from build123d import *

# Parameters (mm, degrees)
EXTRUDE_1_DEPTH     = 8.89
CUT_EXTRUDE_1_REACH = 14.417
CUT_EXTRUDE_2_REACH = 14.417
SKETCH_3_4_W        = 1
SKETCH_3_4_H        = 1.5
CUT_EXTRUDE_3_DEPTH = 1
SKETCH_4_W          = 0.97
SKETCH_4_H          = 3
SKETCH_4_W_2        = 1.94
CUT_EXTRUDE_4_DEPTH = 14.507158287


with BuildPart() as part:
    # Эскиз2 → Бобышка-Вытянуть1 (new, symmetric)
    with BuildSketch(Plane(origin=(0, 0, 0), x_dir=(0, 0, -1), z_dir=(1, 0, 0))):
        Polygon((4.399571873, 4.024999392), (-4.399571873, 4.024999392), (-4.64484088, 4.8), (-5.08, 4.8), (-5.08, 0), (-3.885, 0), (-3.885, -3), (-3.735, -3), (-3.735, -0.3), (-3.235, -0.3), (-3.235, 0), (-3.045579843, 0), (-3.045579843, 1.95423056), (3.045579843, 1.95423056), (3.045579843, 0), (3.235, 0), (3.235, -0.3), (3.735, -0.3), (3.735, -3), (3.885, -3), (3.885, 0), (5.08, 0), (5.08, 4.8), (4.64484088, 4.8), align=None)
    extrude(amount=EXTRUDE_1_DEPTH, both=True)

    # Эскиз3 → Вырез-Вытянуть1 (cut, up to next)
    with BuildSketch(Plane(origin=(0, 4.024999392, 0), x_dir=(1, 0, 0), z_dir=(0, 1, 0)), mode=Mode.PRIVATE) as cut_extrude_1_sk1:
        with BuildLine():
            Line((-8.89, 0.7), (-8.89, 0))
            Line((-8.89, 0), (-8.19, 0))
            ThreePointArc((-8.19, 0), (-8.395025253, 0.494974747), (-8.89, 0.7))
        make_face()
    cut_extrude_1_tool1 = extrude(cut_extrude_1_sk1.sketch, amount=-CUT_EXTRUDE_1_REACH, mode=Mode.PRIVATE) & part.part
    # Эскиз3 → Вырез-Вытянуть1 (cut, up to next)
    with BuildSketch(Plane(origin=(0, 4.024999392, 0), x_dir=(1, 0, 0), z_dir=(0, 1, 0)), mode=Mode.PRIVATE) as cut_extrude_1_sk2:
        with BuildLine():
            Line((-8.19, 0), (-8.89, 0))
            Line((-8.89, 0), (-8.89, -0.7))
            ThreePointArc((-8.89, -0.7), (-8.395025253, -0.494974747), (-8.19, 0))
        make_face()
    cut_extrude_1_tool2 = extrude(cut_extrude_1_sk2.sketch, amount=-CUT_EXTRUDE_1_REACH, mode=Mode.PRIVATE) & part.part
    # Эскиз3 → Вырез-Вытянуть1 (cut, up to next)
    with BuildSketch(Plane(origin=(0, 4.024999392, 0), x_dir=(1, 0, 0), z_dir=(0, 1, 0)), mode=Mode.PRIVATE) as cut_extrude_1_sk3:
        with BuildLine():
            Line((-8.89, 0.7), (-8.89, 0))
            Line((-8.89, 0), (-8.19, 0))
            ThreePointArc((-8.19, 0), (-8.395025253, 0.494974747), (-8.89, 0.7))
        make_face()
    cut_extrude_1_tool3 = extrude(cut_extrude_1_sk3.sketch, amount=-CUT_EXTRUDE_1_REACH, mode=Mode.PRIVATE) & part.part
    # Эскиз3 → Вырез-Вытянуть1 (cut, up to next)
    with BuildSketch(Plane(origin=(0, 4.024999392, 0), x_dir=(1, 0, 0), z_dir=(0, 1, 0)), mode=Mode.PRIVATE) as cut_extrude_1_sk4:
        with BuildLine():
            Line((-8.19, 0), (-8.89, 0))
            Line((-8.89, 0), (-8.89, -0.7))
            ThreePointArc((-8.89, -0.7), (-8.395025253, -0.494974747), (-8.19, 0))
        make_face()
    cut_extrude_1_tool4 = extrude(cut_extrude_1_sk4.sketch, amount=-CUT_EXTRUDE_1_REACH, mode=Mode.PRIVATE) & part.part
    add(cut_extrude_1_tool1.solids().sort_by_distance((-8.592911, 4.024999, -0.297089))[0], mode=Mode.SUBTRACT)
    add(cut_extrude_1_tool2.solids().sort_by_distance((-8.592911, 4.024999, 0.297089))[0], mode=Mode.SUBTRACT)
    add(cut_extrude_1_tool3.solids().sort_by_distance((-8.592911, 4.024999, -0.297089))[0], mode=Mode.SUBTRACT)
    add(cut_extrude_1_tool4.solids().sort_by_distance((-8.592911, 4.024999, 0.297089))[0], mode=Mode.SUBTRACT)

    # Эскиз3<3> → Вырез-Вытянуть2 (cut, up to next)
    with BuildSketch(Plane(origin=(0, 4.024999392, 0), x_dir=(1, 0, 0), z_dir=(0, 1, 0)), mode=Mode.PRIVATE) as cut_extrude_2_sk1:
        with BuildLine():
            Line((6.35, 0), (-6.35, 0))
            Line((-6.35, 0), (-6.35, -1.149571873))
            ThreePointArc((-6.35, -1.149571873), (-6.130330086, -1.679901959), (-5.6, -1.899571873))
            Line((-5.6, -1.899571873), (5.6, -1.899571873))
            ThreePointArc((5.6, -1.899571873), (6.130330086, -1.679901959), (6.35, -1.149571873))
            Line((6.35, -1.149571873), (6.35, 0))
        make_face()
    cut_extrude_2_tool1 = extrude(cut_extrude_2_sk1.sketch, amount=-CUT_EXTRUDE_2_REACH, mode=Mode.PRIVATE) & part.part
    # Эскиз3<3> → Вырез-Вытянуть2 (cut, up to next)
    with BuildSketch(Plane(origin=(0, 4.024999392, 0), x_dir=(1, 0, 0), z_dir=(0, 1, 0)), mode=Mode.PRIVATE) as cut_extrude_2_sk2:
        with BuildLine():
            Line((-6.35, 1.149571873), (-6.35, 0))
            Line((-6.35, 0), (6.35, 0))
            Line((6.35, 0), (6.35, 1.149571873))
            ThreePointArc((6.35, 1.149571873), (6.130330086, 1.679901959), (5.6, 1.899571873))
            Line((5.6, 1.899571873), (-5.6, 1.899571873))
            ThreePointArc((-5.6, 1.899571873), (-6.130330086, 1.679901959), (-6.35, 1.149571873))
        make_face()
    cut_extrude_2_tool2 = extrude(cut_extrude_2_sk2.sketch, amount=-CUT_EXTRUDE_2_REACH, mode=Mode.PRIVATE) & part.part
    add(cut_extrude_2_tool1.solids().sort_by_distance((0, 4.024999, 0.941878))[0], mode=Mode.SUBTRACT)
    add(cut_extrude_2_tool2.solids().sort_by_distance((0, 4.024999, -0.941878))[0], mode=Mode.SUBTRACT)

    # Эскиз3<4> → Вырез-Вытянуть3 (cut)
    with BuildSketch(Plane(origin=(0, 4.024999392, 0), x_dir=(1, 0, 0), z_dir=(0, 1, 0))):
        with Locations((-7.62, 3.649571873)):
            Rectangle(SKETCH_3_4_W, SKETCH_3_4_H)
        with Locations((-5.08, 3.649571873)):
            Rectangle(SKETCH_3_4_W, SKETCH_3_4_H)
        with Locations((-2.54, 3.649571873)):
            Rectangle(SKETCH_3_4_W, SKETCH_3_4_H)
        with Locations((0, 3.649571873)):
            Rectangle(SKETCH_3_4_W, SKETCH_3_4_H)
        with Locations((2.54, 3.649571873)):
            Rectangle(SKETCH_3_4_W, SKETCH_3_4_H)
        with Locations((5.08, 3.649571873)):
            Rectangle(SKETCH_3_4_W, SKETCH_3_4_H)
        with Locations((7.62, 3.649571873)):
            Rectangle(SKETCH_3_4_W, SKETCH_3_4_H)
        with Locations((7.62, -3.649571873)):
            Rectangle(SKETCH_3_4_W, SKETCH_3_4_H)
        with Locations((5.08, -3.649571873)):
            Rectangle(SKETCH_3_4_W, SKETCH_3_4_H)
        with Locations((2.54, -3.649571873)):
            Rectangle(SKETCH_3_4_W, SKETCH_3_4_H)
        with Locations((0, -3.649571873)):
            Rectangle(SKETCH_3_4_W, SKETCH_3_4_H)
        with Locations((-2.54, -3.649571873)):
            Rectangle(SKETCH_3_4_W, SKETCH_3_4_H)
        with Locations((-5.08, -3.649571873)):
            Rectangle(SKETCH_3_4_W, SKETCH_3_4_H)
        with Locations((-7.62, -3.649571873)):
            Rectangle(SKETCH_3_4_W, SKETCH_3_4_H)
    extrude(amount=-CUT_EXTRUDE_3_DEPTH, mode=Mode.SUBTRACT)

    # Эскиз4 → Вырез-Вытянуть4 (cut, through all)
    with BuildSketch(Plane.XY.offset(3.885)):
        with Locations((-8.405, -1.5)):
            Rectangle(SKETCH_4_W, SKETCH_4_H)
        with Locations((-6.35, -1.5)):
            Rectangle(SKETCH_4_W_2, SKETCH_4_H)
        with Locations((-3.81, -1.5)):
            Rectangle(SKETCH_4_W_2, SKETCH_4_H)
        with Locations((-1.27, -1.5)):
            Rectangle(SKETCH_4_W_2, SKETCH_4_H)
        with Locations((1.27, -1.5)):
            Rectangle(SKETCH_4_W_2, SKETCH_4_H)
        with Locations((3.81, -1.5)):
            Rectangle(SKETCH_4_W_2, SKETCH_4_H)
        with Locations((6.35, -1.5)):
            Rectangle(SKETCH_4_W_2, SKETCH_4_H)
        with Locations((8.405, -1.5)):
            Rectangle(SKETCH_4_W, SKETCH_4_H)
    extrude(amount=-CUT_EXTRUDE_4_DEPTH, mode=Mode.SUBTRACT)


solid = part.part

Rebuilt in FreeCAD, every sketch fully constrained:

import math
import FreeCAD as App
import Part
import Sketcher
from FreeCAD import Vector
Q = App.Units.Quantity


def add_polygon(sketch, points):
    """Adds a closed chain of lines whose ends are joined by coincident constraints."""
    first, n = sketch.GeometryCount, len(points)
    for a, b in zip(points, points[1:] + points[:1]):
        sketch.addGeometry(Part.LineSegment(App.Vector(*a, 0), App.Vector(*b, 0)), False)
    for i in range(n):
        sketch.addConstraint(Sketcher.Constraint("Coincident", first + i, 2, first + (i + 1) % n, 1))

doc = App.newDocument("Part")
body = doc.addObject("PartDesign::Body", "Body")

# Sketch on YZ plane
sketch1 = body.newObject("Sketcher::SketchObject", "Sketch")
sketch1.AttachmentSupport = (doc.getObject("YZ_Plane"), [""])
sketch1.MapMode = "FlatFace"
add_polygon(sketch1, [(4.02, -4.4), (4.02, 4.4), (4.8, 4.64), (4.8, 5.08), (0, 5.08), (0, 3.88), (-3, 3.88), (-3, 3.73), (-0.3, 3.73), (-0.3, 3.23), (0, 3.23), (0, 3.05), (1.95, 3.05), (1.95, -3.05), (0, -3.05), (0, -3.23), (-0.3, -3.23), (-0.3, -3.73), (-3, -3.73), (-3, -3.88), (0, -3.88), (0, -5.08), (4.8, -5.08), (4.8, -4.64)])  # lines 0-23
sketch1.addConstraint([
    Sketcher.Constraint("Vertical", 0),
    Sketcher.Constraint("Vertical", 2),
    Sketcher.Constraint("Horizontal", 3),
    Sketcher.Constraint("Vertical", 4),
    Sketcher.Constraint("Horizontal", 5),
    Sketcher.Constraint("Vertical", 6),
    Sketcher.Constraint("Horizontal", 7),
    Sketcher.Constraint("Vertical", 8),
    Sketcher.Constraint("Horizontal", 9),
    Sketcher.Constraint("Vertical", 10),
    Sketcher.Constraint("Horizontal", 11),
    Sketcher.Constraint("Vertical", 12),
    Sketcher.Constraint("Horizontal", 13),
    Sketcher.Constraint("Vertical", 14),
    Sketcher.Constraint("Horizontal", 15),
    Sketcher.Constraint("Vertical", 16),
    Sketcher.Constraint("Horizontal", 17),
    Sketcher.Constraint("Vertical", 18),
    Sketcher.Constraint("Horizontal", 19),
    Sketcher.Constraint("Vertical", 20),
    Sketcher.Constraint("Horizontal", 21),
    Sketcher.Constraint("Vertical", 22),
    Sketcher.Constraint("Symmetric", 10, 2, 13, 2, -1, 1),
    Sketcher.Constraint("Symmetric", 4, 2, 19, 2, -1, 1),
    Sketcher.Constraint("Symmetric", 9, 2, 14, 2, -1),
    Sketcher.Constraint("Symmetric", 7, 2, 16, 2, -1),
    Sketcher.Constraint("Symmetric", 3, 2, 20, 2, -1),
    Sketcher.Constraint("Symmetric", 1, 2, 22, 2, -1),
    Sketcher.Constraint("Vertical", 6, 2, 17, 2),
    Sketcher.Constraint("Equal", 1, 23),
    Sketcher.Constraint("DistanceX", 5, 2, 5, 1, Q("3 mm")),
    Sketcher.Constraint("DistanceX", 3, 2, 3, 1, Q("4.8 mm")),
    Sketcher.Constraint("DistanceX", 7, 1, 7, 2, Q("2.7 mm")),
    Sketcher.Constraint("DistanceY", 8, 2, 8, 1, Q("0.5 mm")),
    Sketcher.Constraint("DistanceY", 6, 2, 6, 1, Q("0.15 mm")),
    Sketcher.Constraint("DistanceY", 4, 2, 4, 1, Q("1.195 mm")),
    Sketcher.Constraint("DistanceY", -1, 1, 2, 2, Q("5.08 mm")),
    Sketcher.Constraint("DistanceX", -1, 1, 0, 2, Q("4.024999 mm")),
    Sketcher.Constraint("DistanceX", 11, 1, 11, 2, Q("1.954231 mm")),
    Sketcher.Constraint("DistanceY", 2, 1, 2, 2, Q("0.435159 mm")),
    Sketcher.Constraint("DistanceY", 10, 2, 10, 1, Q("0.18942 mm")),
    Sketcher.Constraint("DistanceY", 0, 1, 0, 2, Q("8.799144 mm")),
])
pad1 = body.newObject("PartDesign::Pad", "Pad")
pad1.Profile = sketch1
pad1.Length = 17.78
pad1.Midplane = True

# Sketch on XZ plane
sketch2 = body.newObject("Sketcher::SketchObject", "Sketch001")
sketch2.AttachmentSupport = (doc.getObject("XZ_Plane"), [""])
sketch2.MapMode = "FlatFace"
sketch2.AttachmentOffset = App.Placement(Vector(0, 0, -4.024999), App.Rotation())
sketch2.addGeometry([
    Part.LineSegment(Vector(-8.9, -0.7, 0), Vector(-8.9, 0, 0)),
    Part.LineSegment(Vector(-8.9, 0, 0), Vector(-8.2, 0, 0)),
    Part.ArcOfCircle(Part.Circle(Vector(-8.9, 0, 0), Vector(0, 0, 1), 0.7), math.radians(-90), math.radians(0)),
], False)
sketch2.addConstraint([
    Sketcher.Constraint("Coincident", 0, 2, 1, 1),
    Sketcher.Constraint("Coincident", 1, 2, 2, 2),
    Sketcher.Constraint("Coincident", 2, 1, 0, 1),
    Sketcher.Constraint("Vertical", 0),
    Sketcher.Constraint("Horizontal", 1),
    Sketcher.Constraint("Coincident", 0, 2, 2, 3),
    Sketcher.Constraint("PointOnObject", 2, 3, -1),
    Sketcher.Constraint("Radius", 2, Q("0.7 mm")),
    Sketcher.Constraint("DistanceX", 2, 3, -1, 1, Q("8.89 mm")),
])
pocket1 = body.newObject("PartDesign::Pocket", "Pocket")
pocket1.Profile = sketch2
pocket1.Type = "UpToFirst"
pocket1.Reversed = True

# Sketch on XZ plane
sketch3 = body.newObject("Sketcher::SketchObject", "Sketch002")
sketch3.AttachmentSupport = (doc.getObject("XZ_Plane"), [""])
sketch3.MapMode = "FlatFace"
sketch3.AttachmentOffset = App.Placement(Vector(0, 0, -4.024999), App.Rotation())
sketch3.addGeometry([
    Part.LineSegment(Vector(-8.2, 0, 0), Vector(-8.9, 0, 0)),
    Part.LineSegment(Vector(-8.9, 0, 0), Vector(-8.9, 0.7, 0)),
    Part.ArcOfCircle(Part.Circle(Vector(-8.9, 0, 0), Vector(0, 0, 1), 0.7), math.radians(0), math.radians(90)),
], False)
sketch3.addConstraint([
    Sketcher.Constraint("Coincident", 0, 2, 1, 1),
    Sketcher.Constraint("Coincident", 1, 2, 2, 2),
    Sketcher.Constraint("Coincident", 2, 1, 0, 1),
    Sketcher.Constraint("Horizontal", 0),
    Sketcher.Constraint("Vertical", 1),
    Sketcher.Constraint("Coincident", 0, 2, 2, 3),
    Sketcher.Constraint("PointOnObject", 2, 3, -1),
    Sketcher.Constraint("Radius", 2, Q("0.7 mm")),
    Sketcher.Constraint("DistanceX", 2, 3, -1, 1, Q("8.89 mm")),
])
pocket2 = body.newObject("PartDesign::Pocket", "Pocket001")
pocket2.Profile = sketch3
pocket2.Type = "UpToFirst"
pocket2.Reversed = True

# Sketch on XZ plane
sketch4 = body.newObject("Sketcher::SketchObject", "Sketch003")
sketch4.AttachmentSupport = (doc.getObject("XZ_Plane"), [""])
sketch4.MapMode = "FlatFace"
sketch4.AttachmentOffset = App.Placement(Vector(0, 0, -4.024999), App.Rotation())
sketch4.addGeometry([
    Part.LineSegment(Vector(-8.9, -0.7, 0), Vector(-8.9, 0, 0)),
    Part.LineSegment(Vector(-8.9, 0, 0), Vector(-8.2, 0, 0)),
    Part.ArcOfCircle(Part.Circle(Vector(-8.9, 0, 0), Vector(0, 0, 1), 0.7), math.radians(-90), math.radians(0)),
], False)
sketch4.addConstraint([
    Sketcher.Constraint("Coincident", 0, 2, 1, 1),
    Sketcher.Constraint("Coincident", 1, 2, 2, 2),
    Sketcher.Constraint("Coincident", 2, 1, 0, 1),
    Sketcher.Constraint("Vertical", 0),
    Sketcher.Constraint("Horizontal", 1),
    Sketcher.Constraint("Coincident", 0, 2, 2, 3),
    Sketcher.Constraint("PointOnObject", 2, 3, -1),
    Sketcher.Constraint("Radius", 2, Q("0.7 mm")),
    Sketcher.Constraint("DistanceX", 2, 3, -1, 1, Q("8.89 mm")),
])
pocket3 = body.newObject("PartDesign::Pocket", "Pocket002")
pocket3.Profile = sketch4
pocket3.Length = 2.070769
pocket3.Reversed = True

# Sketch on XZ plane
sketch5 = body.newObject("Sketcher::SketchObject", "Sketch004")
sketch5.AttachmentSupport = (doc.getObject("XZ_Plane"), [""])
sketch5.MapMode = "FlatFace"
sketch5.AttachmentOffset = App.Placement(Vector(0, 0, -4.024999), App.Rotation())
sketch5.addGeometry([
    Part.LineSegment(Vector(-8.2, 0, 0), Vector(-8.9, 0, 0)),
    Part.LineSegment(Vector(-8.9, 0, 0), Vector(-8.9, 0.7, 0)),
    Part.ArcOfCircle(Part.Circle(Vector(-8.9, 0, 0), Vector(0, 0, 1), 0.7), math.radians(0), math.radians(90)),
], False)
sketch5.addConstraint([
    Sketcher.Constraint("Coincident", 0, 2, 1, 1),
    Sketcher.Constraint("Coincident", 1, 2, 2, 2),
    Sketcher.Constraint("Coincident", 2, 1, 0, 1),
    Sketcher.Constraint("Horizontal", 0),
    Sketcher.Constraint("Vertical", 1),
    Sketcher.Constraint("Coincident", 0, 2, 2, 3),
    Sketcher.Constraint("PointOnObject", 2, 3, -1),
    Sketcher.Constraint("Radius", 2, Q("0.7 mm")),
    Sketcher.Constraint("DistanceX", 2, 3, -1, 1, Q("8.89 mm")),
])
pocket4 = body.newObject("PartDesign::Pocket", "Pocket003")
pocket4.Profile = sketch5
pocket4.Length = 2.070769
pocket4.Reversed = True

# Sketch on XZ plane
sketch6 = body.newObject("Sketcher::SketchObject", "Sketch005")
sketch6.AttachmentSupport = (doc.getObject("XZ_Plane"), [""])
sketch6.MapMode = "FlatFace"
sketch6.AttachmentOffset = App.Placement(Vector(0, 0, -4.024999), App.Rotation())
sketch6.addGeometry([
    Part.LineSegment(Vector(6.3, 0, 0), Vector(-6.3, 0, 0)),  # 0
    Part.LineSegment(Vector(-6.3, 0, 0), Vector(-6.3, 1.1, 0)),  # 1
    Part.ArcOfCircle(Part.Circle(Vector(-5.6, 1.1, 0), Vector(0, 0, 1), 0.8), math.radians(90), math.radians(180)),  # 2
    Part.LineSegment(Vector(-5.6, 1.9, 0), Vector(5.6, 1.9, 0)),  # 3
    Part.ArcOfCircle(Part.Circle(Vector(5.6, 1.1, 0), Vector(0, 0, 1), 0.8), math.radians(0), math.radians(90)),  # 4
    Part.LineSegment(Vector(6.3, 1.1, 0), Vector(6.3, 0, 0)),  # 5
], False)
sketch6.addConstraint([
    Sketcher.Constraint("Coincident", 0, 2, 1, 1),
    Sketcher.Constraint("Tangent", 1, 2, 2, 2),
    Sketcher.Constraint("Tangent", 2, 1, 3, 1),
    Sketcher.Constraint("Tangent", 3, 2, 4, 2),
    Sketcher.Constraint("Tangent", 4, 1, 5, 1),
    Sketcher.Constraint("Coincident", 5, 2, 0, 1),
    Sketcher.Constraint("Horizontal", 0),
    Sketcher.Constraint("Vertical", 1),
    Sketcher.Constraint("Horizontal", 3),
    Sketcher.Constraint("Vertical", 5),
    Sketcher.Constraint("Equal", 2, 4),
    Sketcher.Constraint("Symmetric", 0, 2, 5, 2, -1, 1),
    Sketcher.Constraint("Radius", 2, Q("0.75 mm")),
    Sketcher.Constraint("DistanceX", 0, 2, 0, 1, Q("12.7 mm")),
    Sketcher.Constraint("DistanceY", 1, 1, 1, 2, Q("1.149572 mm")),
])
pocket5 = body.newObject("PartDesign::Pocket", "Pocket004")
pocket5.Profile = sketch6
pocket5.Type = "UpToFirst"
pocket5.Reversed = True

# Sketch on XZ plane
sketch7 = body.newObject("Sketcher::SketchObject", "Sketch006")
sketch7.AttachmentSupport = (doc.getObject("XZ_Plane"), [""])
sketch7.MapMode = "FlatFace"
sketch7.AttachmentOffset = App.Placement(Vector(0, 0, -4.024999), App.Rotation())
sketch7.addGeometry([
    Part.LineSegment(Vector(-6.3, -1.1, 0), Vector(-6.3, 0, 0)),  # 0
    Part.LineSegment(Vector(-6.3, 0, 0), Vector(6.3, 0, 0)),  # 1
    Part.LineSegment(Vector(6.3, 0, 0), Vector(6.3, -1.1, 0)),  # 2
    Part.ArcOfCircle(Part.Circle(Vector(5.6, -1.1, 0), Vector(0, 0, 1), 0.8), math.radians(-90), math.radians(0)),  # 3
    Part.LineSegment(Vector(5.6, -1.9, 0), Vector(-5.6, -1.9, 0)),  # 4
    Part.ArcOfCircle(Part.Circle(Vector(-5.6, -1.1, 0), Vector(0, 0, 1), 0.8), math.radians(180), math.radians(270)),  # 5
], False)
sketch7.addConstraint([
    Sketcher.Constraint("Coincident", 0, 2, 1, 1),
    Sketcher.Constraint("Coincident", 1, 2, 2, 1),
    Sketcher.Constraint("Tangent", 2, 2, 3, 2),
    Sketcher.Constraint("Tangent", 3, 1, 4, 1),
    Sketcher.Constraint("Tangent", 4, 2, 5, 2),
    Sketcher.Constraint("Tangent", 5, 1, 0, 1),
    Sketcher.Constraint("Vertical", 0),
    Sketcher.Constraint("Horizontal", 1),
    Sketcher.Constraint("Vertical", 2),
    Sketcher.Constraint("Horizontal", 4),
    Sketcher.Constraint("Equal", 3, 5),
    Sketcher.Constraint("Symmetric", 0, 2, 1, 2, -1, 1),
    Sketcher.Constraint("Radius", 3, Q("0.75 mm")),
    Sketcher.Constraint("DistanceX", 1, 1, 1, 2, Q("12.7 mm")),
    Sketcher.Constraint("DistanceY", 0, 1, 0, 2, Q("1.149572 mm")),
])
pocket6 = body.newObject("PartDesign::Pocket", "Pocket005")
pocket6.Profile = sketch7
pocket6.Type = "UpToFirst"
pocket6.Reversed = True

# Sketch on XZ plane
sketch8 = body.newObject("Sketcher::SketchObject", "Sketch007")
sketch8.AttachmentSupport = (doc.getObject("XZ_Plane"), [""])
sketch8.MapMode = "FlatFace"
sketch8.AttachmentOffset = App.Placement(Vector(0, 0, -4.024999), App.Rotation())
add_polygon(sketch8, [(-8.1, -4.4), (-8.1, -2.9), (-7.1, -2.9), (-7.1, -4.4)])  # lines 0-3
add_polygon(sketch8, [(-5.6, -4.4), (-5.6, -2.9), (-4.6, -2.9), (-4.6, -4.4)])  # lines 4-7
add_polygon(sketch8, [(-3, -4.4), (-3, -2.9), (-2, -2.9), (-2, -4.4)])  # lines 8-11
add_polygon(sketch8, [(-0.5, -4.4), (-0.5, -2.9), (0.5, -2.9), (0.5, -4.4)])  # lines 12-15
add_polygon(sketch8, [(2, -4.4), (2, -2.9), (3, -2.9), (3, -4.4)])  # lines 16-19
add_polygon(sketch8, [(4.6, -4.4), (4.6, -2.9), (5.6, -2.9), (5.6, -4.4)])  # lines 20-23
add_polygon(sketch8, [(7.1, -4.4), (7.1, -2.9), (8.1, -2.9), (8.1, -4.4)])  # lines 24-27
add_polygon(sketch8, [(7.1, 2.9), (7.1, 4.4), (8.1, 4.4), (8.1, 2.9)])  # lines 28-31
add_polygon(sketch8, [(4.6, 2.9), (4.6, 4.4), (5.6, 4.4), (5.6, 2.9)])  # lines 32-35
add_polygon(sketch8, [(2, 2.9), (2, 4.4), (3, 4.4), (3, 2.9)])  # lines 36-39
add_polygon(sketch8, [(-0.5, 2.9), (-0.5, 4.4), (0.5, 4.4), (0.5, 2.9)])  # lines 40-43
add_polygon(sketch8, [(-3, 2.9), (-3, 4.4), (-2, 4.4), (-2, 2.9)])  # lines 44-47
add_polygon(sketch8, [(-5.6, 2.9), (-5.6, 4.4), (-4.6, 4.4), (-4.6, 2.9)])  # lines 48-51
add_polygon(sketch8, [(-8.1, 2.9), (-8.1, 4.4), (-7.1, 4.4), (-7.1, 2.9)])  # lines 52-55
sketch8.addConstraint([
    Sketcher.Constraint("Vertical", 0),
    Sketcher.Constraint("Horizontal", 1),
    Sketcher.Constraint("Vertical", 2),
    Sketcher.Constraint("Horizontal", 3),
    Sketcher.Constraint("Vertical", 4),
    Sketcher.Constraint("Horizontal", 5),
    Sketcher.Constraint("Vertical", 6),
    Sketcher.Constraint("Horizontal", 7),
    Sketcher.Constraint("Vertical", 8),
    Sketcher.Constraint("Horizontal", 9),
    Sketcher.Constraint("Vertical", 10),
    Sketcher.Constraint("Horizontal", 11),
    Sketcher.Constraint("Vertical", 12),
    Sketcher.Constraint("Horizontal", 13),
    Sketcher.Constraint("Vertical", 14),
    Sketcher.Constraint("Horizontal", 15),
    Sketcher.Constraint("Vertical", 16),
    Sketcher.Constraint("Horizontal", 17),
    Sketcher.Constraint("Vertical", 18),
    Sketcher.Constraint("Horizontal", 19),
    Sketcher.Constraint("Vertical", 20),
    Sketcher.Constraint("Horizontal", 21),
    Sketcher.Constraint("Vertical", 22),
    Sketcher.Constraint("Horizontal", 23),
    Sketcher.Constraint("Vertical", 24),
    Sketcher.Constraint("Horizontal", 25),
    Sketcher.Constraint("Vertical", 26),
    Sketcher.Constraint("Horizontal", 27),
    Sketcher.Constraint("Vertical", 28),
    Sketcher.Constraint("Horizontal", 29),
    Sketcher.Constraint("Vertical", 30),
    Sketcher.Constraint("Horizontal", 31),
    Sketcher.Constraint("Vertical", 32),
    Sketcher.Constraint("Horizontal", 33),
    Sketcher.Constraint("Vertical", 34),
    Sketcher.Constraint("Horizontal", 35),
    Sketcher.Constraint("Vertical", 36),
    Sketcher.Constraint("Horizontal", 37),
    Sketcher.Constraint("Vertical", 38),
    Sketcher.Constraint("Horizontal", 39),
    Sketcher.Constraint("Vertical", 40),
    Sketcher.Constraint("Horizontal", 41),
    Sketcher.Constraint("Vertical", 42),
    Sketcher.Constraint("Horizontal", 43),
    Sketcher.Constraint("Vertical", 44),
    Sketcher.Constraint("Horizontal", 45),
    Sketcher.Constraint("Vertical", 46),
    Sketcher.Constraint("Horizontal", 47),
    Sketcher.Constraint("Vertical", 48),
    Sketcher.Constraint("Horizontal", 49),
    Sketcher.Constraint("Vertical", 50),
    Sketcher.Constraint("Horizontal", 51),
    Sketcher.Constraint("Vertical", 52),
    Sketcher.Constraint("Horizontal", 53),
    Sketcher.Constraint("Vertical", 54),
    Sketcher.Constraint("Horizontal", 55),
    Sketcher.Constraint("Symmetric", 2, 2, 28, 2, -1, 1),
    Sketcher.Constraint("Symmetric", 0, 2, 30, 2, -1, 1),
    Sketcher.Constraint("Symmetric", 6, 2, 32, 2, -1, 1),
    Sketcher.Constraint("Symmetric", 4, 2, 34, 2, -1, 1),
    Sketcher.Constraint("Symmetric", 10, 2, 36, 2, -1, 1),
    Sketcher.Constraint("Symmetric", 8, 2, 38, 2, -1, 1),
    Sketcher.Constraint("Symmetric", 14, 2, 40, 2, -1, 1),
    Sketcher.Constraint("Symmetric", 12, 2, 42, 2, -1, 1),
    Sketcher.Constraint("Symmetric", 18, 2, 44, 2, -1, 1),
    Sketcher.Constraint("Symmetric", 16, 2, 46, 2, -1, 1),
    Sketcher.Constraint("Symmetric", 22, 2, 48, 2, -1, 1),
    Sketcher.Constraint("Symmetric", 20, 2, 50, 2, -1, 1),
    Sketcher.Constraint("Symmetric", 26, 2, 52, 2, -1, 1),
    Sketcher.Constraint("Symmetric", 24, 2, 54, 2, -1, 1),
    Sketcher.Constraint("Symmetric", 9, 2, 16, 2, -2),
    Sketcher.Constraint("Symmetric", 11, 2, 18, 2, -2),
    Sketcher.Constraint("Symmetric", 5, 2, 20, 2, -2),
    Sketcher.Constraint("Symmetric", 7, 2, 22, 2, -2),
    Sketcher.Constraint("Symmetric", 1, 2, 24, 2, -2),
    Sketcher.Constraint("Symmetric", 3, 2, 26, 2, -2),
    Sketcher.Constraint("Horizontal", 1, 2, 4, 2),
    Sketcher.Constraint("Horizontal", 3, 2, 6, 2),
    Sketcher.Constraint("Horizontal", 5, 2, 8, 2),
    Sketcher.Constraint("Horizontal", 7, 2, 10, 2),
    Sketcher.Constraint("Horizontal", 9, 2, 12, 2),
    Sketcher.Constraint("Horizontal", 11, 2, 14, 2),
    Sketcher.Constraint("Vertical", 15, 2, 40, 2),
    Sketcher.Constraint("Equal", 3, 5),
    Sketcher.Constraint("Equal", 7, 9),
    Sketcher.Constraint("Equal", 11, 13),
    Sketcher.Constraint("DistanceX", 1, 1, 1, 2, Q("1 mm")),
    Sketcher.Constraint("DistanceY", 0, 1, 0, 2, Q("1.5 mm")),
    Sketcher.Constraint("DistanceX", 0, 2, -1, 1, Q("8.12 mm")),
    Sketcher.Constraint("DistanceX", 4, 2, -1, 1, Q("5.58 mm")),
    Sketcher.Constraint("DistanceX", 8, 2, -1, 1, Q("3.04 mm")),
    Sketcher.Constraint("DistanceY", 0, 2, -1, 1, Q("2.899572 mm")),
])
pocket7 = body.newObject("PartDesign::Pocket", "Pocket006")
pocket7.Profile = sketch8
pocket7.Length = 1
pocket7.Reversed = True

# Sketch on XY plane
sketch9 = body.newObject("Sketcher::SketchObject", "Sketch008")
sketch9.AttachmentSupport = (doc.getObject("XY_Plane"), [""])
sketch9.MapMode = "FlatFace"
sketch9.AttachmentOffset = App.Placement(Vector(0, 0, 3.885), App.Rotation())
add_polygon(sketch9, [(-8.9, 0), (-8.9, -3), (-7.9, -3), (-7.9, 0)])  # lines 0-3
add_polygon(sketch9, [(-7.3, 0), (-7.3, -3), (-5.4, -3), (-5.4, 0)])  # lines 4-7
add_polygon(sketch9, [(-4.8, 0), (-4.8, -3), (-2.8, -3), (-2.8, 0)])  # lines 8-11
add_polygon(sketch9, [(-2.2, 0), (-2.2, -3), (-0.3, -3), (-0.3, 0)])  # lines 12-15
add_polygon(sketch9, [(0.3, 0), (0.3, -3), (2.2, -3), (2.2, 0)])  # lines 16-19
add_polygon(sketch9, [(2.8, 0), (2.8, -3), (4.8, -3), (4.8, 0)])  # lines 20-23
add_polygon(sketch9, [(5.4, 0), (5.4, -3), (7.3, -3), (7.3, 0)])  # lines 24-27
add_polygon(sketch9, [(7.9, 0), (7.9, -3), (8.9, -3), (8.9, 0)])  # lines 28-31
sketch9.addConstraint([
    Sketcher.Constraint("Vertical", 0),
    Sketcher.Constraint("Horizontal", 1),
    Sketcher.Constraint("Vertical", 2),
    Sketcher.Constraint("Horizontal", 3),
    Sketcher.Constraint("Vertical", 4),
    Sketcher.Constraint("Horizontal", 5),
    Sketcher.Constraint("Vertical", 6),
    Sketcher.Constraint("Horizontal", 7),
    Sketcher.Constraint("Vertical", 8),
    Sketcher.Constraint("Horizontal", 9),
    Sketcher.Constraint("Vertical", 10),
    Sketcher.Constraint("Horizontal", 11),
    Sketcher.Constraint("Vertical", 12),
    Sketcher.Constraint("Horizontal", 13),
    Sketcher.Constraint("Vertical", 14),
    Sketcher.Constraint("Horizontal", 15),
    Sketcher.Constraint("Vertical", 16),
    Sketcher.Constraint("Horizontal", 17),
    Sketcher.Constraint("Vertical", 18),
    Sketcher.Constraint("Horizontal", 19),
    Sketcher.Constraint("Vertical", 20),
    Sketcher.Constraint("Horizontal", 21),
    Sketcher.Constraint("Vertical", 22),
    Sketcher.Constraint("Horizontal", 23),
    Sketcher.Constraint("Vertical", 24),
    Sketcher.Constraint("Horizontal", 25),
    Sketcher.Constraint("Vertical", 26),
    Sketcher.Constraint("Horizontal", 27),
    Sketcher.Constraint("Vertical", 28),
    Sketcher.Constraint("Horizontal", 29),
    Sketcher.Constraint("Vertical", 30),
    Sketcher.Constraint("Horizontal", 31),
    Sketcher.Constraint("Symmetric", 15, 2, 18, 2, -1, 1),
    Sketcher.Constraint("Symmetric", 11, 2, 22, 2, -1, 1),
    Sketcher.Constraint("Symmetric", 7, 2, 26, 2, -1, 1),
    Sketcher.Constraint("Symmetric", 3, 2, 30, 2, -1, 1),
    Sketcher.Constraint("Symmetric", 13, 2, 16, 2, -2),
    Sketcher.Constraint("Symmetric", 9, 2, 20, 2, -2),
    Sketcher.Constraint("Symmetric", 5, 2, 24, 2, -2),
    Sketcher.Constraint("Symmetric", 1, 2, 28, 2, -2),
    Sketcher.Constraint("PointOnObject", 2, 2, -1),
    Sketcher.Constraint("PointOnObject", 6, 2, -1),
    Sketcher.Constraint("PointOnObject", 10, 2, -1),
    Sketcher.Constraint("PointOnObject", 14, 2, -1),
    Sketcher.Constraint("Horizontal", 1, 2, 4, 2),
    Sketcher.Constraint("Horizontal", 5, 2, 8, 2),
    Sketcher.Constraint("Horizontal", 9, 2, 12, 2),
    Sketcher.Constraint("Equal", 7, 9),
    Sketcher.Constraint("Equal", 11, 13),
    Sketcher.Constraint("DistanceY", 0, 2, 0, 1, Q("3 mm")),
    Sketcher.Constraint("DistanceX", 1, 1, 1, 2, Q("0.97 mm")),
    Sketcher.Constraint("DistanceX", 5, 1, 5, 2, Q("1.94 mm")),
    Sketcher.Constraint("DistanceX", 13, 2, -1, 1, Q("0.3 mm")),
    Sketcher.Constraint("DistanceX", 1, 2, 4, 2, Q("0.6 mm")),
    Sketcher.Constraint("DistanceX", 5, 2, 8, 2, Q("0.6 mm")),
    Sketcher.Constraint("DistanceX", 9, 2, 12, 2, Q("0.6 mm")),
])
pocket8 = body.newObject("PartDesign::Pocket", "Pocket007")
pocket8.Profile = sketch9
pocket8.Type = "ThroughAll"

doc.recompute()
